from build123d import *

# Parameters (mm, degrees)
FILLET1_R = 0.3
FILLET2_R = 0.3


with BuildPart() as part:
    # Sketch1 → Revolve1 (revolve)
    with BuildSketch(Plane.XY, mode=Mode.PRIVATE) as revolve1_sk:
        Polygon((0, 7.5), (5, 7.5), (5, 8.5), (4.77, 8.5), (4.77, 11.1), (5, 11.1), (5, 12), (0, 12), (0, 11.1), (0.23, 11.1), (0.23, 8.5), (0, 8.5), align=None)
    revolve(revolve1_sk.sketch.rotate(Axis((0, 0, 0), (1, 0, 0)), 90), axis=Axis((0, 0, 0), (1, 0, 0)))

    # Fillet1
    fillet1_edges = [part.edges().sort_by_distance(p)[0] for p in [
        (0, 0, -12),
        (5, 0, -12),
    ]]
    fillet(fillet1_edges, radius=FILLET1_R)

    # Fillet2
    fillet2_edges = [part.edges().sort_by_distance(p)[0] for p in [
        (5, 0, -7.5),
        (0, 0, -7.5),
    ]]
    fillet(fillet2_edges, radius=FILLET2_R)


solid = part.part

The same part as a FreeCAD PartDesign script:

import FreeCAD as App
import Part
import Sketcher


def edges_at(feature, points):
    """Names of the edges that pass closest to the given points."""
    edges = feature.Shape.Edges
    near = lambda p: min(range(len(edges)), key=lambda i: edges[i].distToShape(Part.Vertex(*p))[0])
    return sorted({f"Edge{near(p) + 1}" for p in points})


def add_polygon(sketch, points):
    """Adds a closed chain of lines whose ends are joined by coincident constraints."""
    first, n = sketch.GeometryCount, len(points)
    for a, b in zip(points, points[1:] + points[:1]):
        sketch.addGeometry(Part.LineSegment(App.Vector(*a, 0), App.Vector(*b, 0)), False)
    for i in range(n):
        sketch.addConstraint(Sketcher.Constraint("Coincident", first + i, 2, first + (i + 1) % n, 1))

doc = App.newDocument("Part")
body = doc.addObject("PartDesign::Body", "Body")

# Sketch on XY plane
sketch1 = body.newObject("Sketcher::SketchObject", "Sketch")
sketch1.AttachmentSupport = (doc.getObject("XY_Plane"), [""])
sketch1.MapMode = "FlatFace"
add_polygon(sketch1, [(0, 7.5), (5, 7.5), (5, 8.5), (4.77, 8.5), (4.77, 11.1), (5, 11.1), (5, 12), (0, 12), (0, 11.1), (0.23, 11.1), (0.23, 8.5), (0, 8.5)])  # lines 0-11
sketch1.addConstraint(Sketcher.Constraint("Horizontal", 0))
sketch1.addConstraint(Sketcher.Constraint("Vertical", 1))
sketch1.addConstraint(Sketcher.Constraint("Horizontal", 2))
sketch1.addConstraint(Sketcher.Constraint("Vertical", 3))
sketch1.addConstraint(Sketcher.Constraint("Horizontal", 4))
sketch1.addConstraint(Sketcher.Constraint("Vertical", 5))
sketch1.addConstraint(Sketcher.Constraint("Horizontal", 6))
sketch1.addConstraint(Sketcher.Constraint("Vertical", 7))
sketch1.addConstraint(Sketcher.Constraint("Horizontal", 8))
sketch1.addConstraint(Sketcher.Constraint("Vertical", 9))
sketch1.addConstraint(Sketcher.Constraint("Horizontal", 10))
sketch1.addConstraint(Sketcher.Constraint("Vertical", 11))
sketch1.addConstraint(Sketcher.Constraint("PointOnObject", 6, 2, -2))
sketch1.addConstraint(Sketcher.Constraint("PointOnObject", 10, 2, -2))
sketch1.addConstraint(Sketcher.Constraint("Horizontal", 4, 2, 7, 2))
sketch1.addConstraint(Sketcher.Constraint("Horizontal", 2, 2, 9, 2))
sketch1.addConstraint(Sketcher.Constraint("Vertical", 1, 2, 4, 2))
sketch1.addConstraint(Sketcher.Constraint("Equal", 4, 8))
sketch1.addConstraint(Sketcher.Constraint("DistanceX", 0, 1, 0, 2, 5.0))
sketch1.addConstraint(Sketcher.Constraint("DistanceY", 1, 1, 1, 2, 1.0))
sketch1.addConstraint(Sketcher.Constraint("DistanceY", 3, 1, 3, 2, 2.6))
sketch1.addConstraint(Sketcher.Constraint("DistanceY", 5, 1, 5, 2, 0.9))
sketch1.addConstraint(Sketcher.Constraint("DistanceY", -1, 1, 5, 2, 12.0))
sketch1.addConstraint(Sketcher.Constraint("DistanceX", 2, 2, 2, 1, 0.23))
revolution = body.newObject("PartDesign::Revolution", "Revolution")
revolution.Profile = sketch1
revolution.ReferenceAxis = (sketch1, ["H_Axis"])
revolution.Angle = 360
doc.recompute()

fillet = body.newObject("PartDesign::Fillet", "Fillet")
fillet.Base = (revolution, edges_at(revolution, [(0, 0, -12), (5, 0, -12)]))
fillet.Radius = 0.3
doc.recompute()

fillet2 = body.newObject("PartDesign::Fillet", "Fillet001")
fillet2.Base = (fillet, edges_at(fillet, [(5, 0, -7.5), (0, 0, -7.5)]))
fillet2.Radius = 0.3

doc.recompute()
